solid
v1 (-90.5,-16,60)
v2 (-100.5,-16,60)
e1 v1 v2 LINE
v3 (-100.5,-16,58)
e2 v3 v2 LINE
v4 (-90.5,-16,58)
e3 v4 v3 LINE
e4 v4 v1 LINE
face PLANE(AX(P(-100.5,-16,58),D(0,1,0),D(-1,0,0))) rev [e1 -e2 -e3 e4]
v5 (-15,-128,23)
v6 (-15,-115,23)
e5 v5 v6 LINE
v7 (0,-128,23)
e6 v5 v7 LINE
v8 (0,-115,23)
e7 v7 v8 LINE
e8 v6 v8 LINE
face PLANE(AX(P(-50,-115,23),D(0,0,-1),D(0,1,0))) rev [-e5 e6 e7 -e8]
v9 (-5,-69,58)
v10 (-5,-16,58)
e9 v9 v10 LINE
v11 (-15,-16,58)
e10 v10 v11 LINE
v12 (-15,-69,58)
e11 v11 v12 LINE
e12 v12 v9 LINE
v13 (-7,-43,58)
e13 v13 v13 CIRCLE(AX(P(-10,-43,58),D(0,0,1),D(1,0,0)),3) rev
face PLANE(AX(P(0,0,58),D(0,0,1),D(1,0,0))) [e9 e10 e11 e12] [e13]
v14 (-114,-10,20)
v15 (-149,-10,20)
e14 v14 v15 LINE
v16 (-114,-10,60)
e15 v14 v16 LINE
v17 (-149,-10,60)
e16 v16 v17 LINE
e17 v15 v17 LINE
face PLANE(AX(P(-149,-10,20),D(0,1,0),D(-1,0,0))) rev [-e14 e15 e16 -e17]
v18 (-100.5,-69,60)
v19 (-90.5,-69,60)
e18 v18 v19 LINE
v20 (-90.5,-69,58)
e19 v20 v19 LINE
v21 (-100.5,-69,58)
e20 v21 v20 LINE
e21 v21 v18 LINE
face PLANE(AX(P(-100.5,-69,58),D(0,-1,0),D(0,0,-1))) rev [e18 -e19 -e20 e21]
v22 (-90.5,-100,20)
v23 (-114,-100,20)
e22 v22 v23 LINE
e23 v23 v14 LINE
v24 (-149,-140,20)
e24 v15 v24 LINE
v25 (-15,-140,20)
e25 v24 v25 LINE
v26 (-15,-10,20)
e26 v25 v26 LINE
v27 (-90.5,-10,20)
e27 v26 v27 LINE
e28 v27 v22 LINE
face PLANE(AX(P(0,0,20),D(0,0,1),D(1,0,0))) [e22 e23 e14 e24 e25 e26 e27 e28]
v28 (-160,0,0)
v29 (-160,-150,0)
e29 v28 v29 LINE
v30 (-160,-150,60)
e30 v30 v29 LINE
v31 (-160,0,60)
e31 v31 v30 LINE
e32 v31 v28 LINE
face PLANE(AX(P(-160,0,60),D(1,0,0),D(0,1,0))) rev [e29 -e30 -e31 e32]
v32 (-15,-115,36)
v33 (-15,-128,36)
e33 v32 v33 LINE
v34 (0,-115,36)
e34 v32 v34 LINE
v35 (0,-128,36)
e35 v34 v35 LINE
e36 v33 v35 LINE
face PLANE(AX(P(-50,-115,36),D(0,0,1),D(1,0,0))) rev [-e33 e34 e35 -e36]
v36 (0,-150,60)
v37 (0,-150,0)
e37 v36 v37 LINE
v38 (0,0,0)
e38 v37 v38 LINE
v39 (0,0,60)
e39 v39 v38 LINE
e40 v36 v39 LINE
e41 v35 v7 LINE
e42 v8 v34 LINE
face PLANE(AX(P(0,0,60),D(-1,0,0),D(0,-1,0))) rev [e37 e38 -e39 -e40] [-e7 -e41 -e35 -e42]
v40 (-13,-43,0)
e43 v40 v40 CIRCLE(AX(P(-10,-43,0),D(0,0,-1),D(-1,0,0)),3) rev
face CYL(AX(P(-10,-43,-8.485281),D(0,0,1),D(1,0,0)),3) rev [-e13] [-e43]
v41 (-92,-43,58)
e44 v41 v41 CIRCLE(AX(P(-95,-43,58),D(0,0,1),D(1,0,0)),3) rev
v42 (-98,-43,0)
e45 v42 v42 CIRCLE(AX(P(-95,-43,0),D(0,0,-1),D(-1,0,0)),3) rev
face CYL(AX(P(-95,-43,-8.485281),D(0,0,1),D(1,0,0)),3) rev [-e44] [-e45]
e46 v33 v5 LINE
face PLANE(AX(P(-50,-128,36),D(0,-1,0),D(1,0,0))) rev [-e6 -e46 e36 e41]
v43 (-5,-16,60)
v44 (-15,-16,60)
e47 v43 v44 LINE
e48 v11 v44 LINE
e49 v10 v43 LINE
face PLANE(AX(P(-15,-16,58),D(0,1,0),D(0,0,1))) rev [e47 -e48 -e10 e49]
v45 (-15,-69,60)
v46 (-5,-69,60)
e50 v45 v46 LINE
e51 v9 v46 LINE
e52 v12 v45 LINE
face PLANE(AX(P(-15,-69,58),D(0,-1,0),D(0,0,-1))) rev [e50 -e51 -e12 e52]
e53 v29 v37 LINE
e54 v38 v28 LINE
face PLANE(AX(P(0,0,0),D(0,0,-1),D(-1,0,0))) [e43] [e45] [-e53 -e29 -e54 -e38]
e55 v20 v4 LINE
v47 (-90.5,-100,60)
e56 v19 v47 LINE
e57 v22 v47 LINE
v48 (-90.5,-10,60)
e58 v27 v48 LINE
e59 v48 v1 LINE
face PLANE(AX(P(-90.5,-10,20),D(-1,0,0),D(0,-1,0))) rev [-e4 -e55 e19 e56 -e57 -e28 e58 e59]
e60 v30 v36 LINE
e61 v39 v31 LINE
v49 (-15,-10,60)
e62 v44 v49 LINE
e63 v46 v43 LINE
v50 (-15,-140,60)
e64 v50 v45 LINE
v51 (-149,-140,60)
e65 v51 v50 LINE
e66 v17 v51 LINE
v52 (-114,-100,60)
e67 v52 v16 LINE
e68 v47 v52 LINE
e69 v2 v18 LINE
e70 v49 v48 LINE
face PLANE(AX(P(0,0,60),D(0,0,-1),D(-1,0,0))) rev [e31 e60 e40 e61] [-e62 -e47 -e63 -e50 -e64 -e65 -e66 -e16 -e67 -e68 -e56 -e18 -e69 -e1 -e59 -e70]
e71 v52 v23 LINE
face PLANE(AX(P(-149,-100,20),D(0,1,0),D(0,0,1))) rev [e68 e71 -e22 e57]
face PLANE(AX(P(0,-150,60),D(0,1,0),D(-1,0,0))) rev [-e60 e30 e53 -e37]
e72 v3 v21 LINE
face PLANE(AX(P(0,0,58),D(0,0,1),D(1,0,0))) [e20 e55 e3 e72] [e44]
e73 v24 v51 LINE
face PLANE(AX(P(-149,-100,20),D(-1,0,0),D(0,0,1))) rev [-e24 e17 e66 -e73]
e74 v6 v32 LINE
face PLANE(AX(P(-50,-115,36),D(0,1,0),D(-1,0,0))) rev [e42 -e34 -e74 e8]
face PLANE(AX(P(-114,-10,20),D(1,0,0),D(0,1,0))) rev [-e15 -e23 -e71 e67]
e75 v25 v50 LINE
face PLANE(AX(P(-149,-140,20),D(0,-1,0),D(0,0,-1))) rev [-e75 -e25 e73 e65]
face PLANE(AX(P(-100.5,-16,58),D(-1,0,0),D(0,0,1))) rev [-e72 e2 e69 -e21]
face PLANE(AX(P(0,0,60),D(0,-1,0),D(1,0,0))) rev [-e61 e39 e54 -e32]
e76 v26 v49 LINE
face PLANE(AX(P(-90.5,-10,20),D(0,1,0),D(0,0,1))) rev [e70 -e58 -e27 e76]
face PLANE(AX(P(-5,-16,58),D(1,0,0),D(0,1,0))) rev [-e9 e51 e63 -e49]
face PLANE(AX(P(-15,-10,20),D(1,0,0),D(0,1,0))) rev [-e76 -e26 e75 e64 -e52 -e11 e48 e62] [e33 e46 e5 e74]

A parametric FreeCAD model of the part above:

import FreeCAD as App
import Part
import Sketcher

V = App.Vector

doc = App.newDocument("Part")
params = doc.addObject("Spreadsheet::Sheet", "Params")
for row, (alias, value) in enumerate([
    ("sketch1_width", "160 mm"),
    ("sketch1_height", "150 mm"),
    ("pad1_length", "60 mm"),
    ("sketch2_width", "134 mm"),
    ("sketch2_height", "90 mm"),
    ("sketch2_height2", "40 mm"),
    ("sketch2_width2", "75.5 mm"),
    ("pocket1_length", "40 mm"),
    ("sketch3_diameter", "6 mm"),
    ("pocket2_length", "60 mm"),
    ("sketch4_width", "13 mm"),
    ("pocket3_length", "50 mm"),
    ("sketch5_width", "10 mm"),
    ("sketch5_height", "53 mm"),
    ("pocket4_length", "2 mm"),
    ("sketch6_width", "35 mm"),
    ("sketch6_height", "130 mm"),
    ("pocket5_length", "40 mm"),
], start=1):
    params.set(f"A{row}", alias)
    params.set(f"B{row}", "=" + value)
    params.setAlias(f"B{row}", alias)

body = doc.addObject("PartDesign::Body", "Body")

sketch1 = body.newObject("Sketcher::SketchObject", "Sketch")
sketch1.AttachmentSupport = (doc.getObject("XY_Plane"), [""])
sketch1.MapMode = "FlatFace"
sketch1.addGeometry(Part.LineSegment(V(-160, 0, 0), V(-160, -150, 0)), False)
sketch1.addGeometry(Part.LineSegment(V(-160, -150, 0), V(0, -150, 0)), False)
sketch1.addGeometry(Part.LineSegment(V(0, -150, 0), V(0, 0, 0)), False)
sketch1.addGeometry(Part.LineSegment(V(0, 0, 0), V(-160, 0, 0)), False)
sketch1.addConstraint(Sketcher.Constraint("Coincident", 0, 2, 1, 1))
sketch1.addConstraint(Sketcher.Constraint("Coincident", 1, 2, 2, 1))
sketch1.addConstraint(Sketcher.Constraint("Coincident", 2, 2, 3, 1))
sketch1.addConstraint(Sketcher.Constraint("Coincident", 3, 2, 0, 1))
sketch1.addConstraint(Sketcher.Constraint("Vertical", 0))
sketch1.addConstraint(Sketcher.Constraint("Horizontal", 1))
sketch1.addConstraint(Sketcher.Constraint("Vertical", 2))
sketch1.addConstraint(Sketcher.Constraint("Horizontal", 3))
sketch1.addConstraint(Sketcher.Constraint("Coincident", 2, 2, -1, 1))
sketch1.addConstraint(Sketcher.Constraint("DistanceX", 1, 1, 1, 2, 160.0))
sketch1.addConstraint(Sketcher.Constraint("DistanceY", 0, 2, 0, 1, 150.0))
sketch1.setExpression("Constraints[9]", "Params.sketch1_width")
sketch1.setExpression("Constraints[10]", "Params.sketch1_height")
pad1 = body.newObject("PartDesign::Pad", "Pad")
pad1.Profile = sketch1
pad1.setExpression("Length", "Params.pad1_length")

sketch2 = body.newObject("Sketcher::SketchObject", "Sketch001")
sketch2.AttachmentSupport = (doc.getObject("XY_Plane"), [""])
sketch2.MapMode = "FlatFace"
sketch2.AttachmentOffset = App.Placement(V(0, 0, 60), App.Rotation())
sketch2.addGeometry(Part.LineSegment(V(-15, -10, 0), V(-90.5, -10, 0)), False)
sketch2.addGeometry(Part.LineSegment(V(-90.5, -10, 0), V(-90.5, -100, 0)), False)
sketch2.addGeometry(Part.LineSegment(V(-90.5, -100, 0), V(-149, -100, 0)), False)
sketch2.addGeometry(Part.LineSegment(V(-149, -100, 0), V(-149, -140, 0)), False)
sketch2.addGeometry(Part.LineSegment(V(-149, -140, 0), V(-15, -140, 0)), False)
sketch2.addGeometry(Part.LineSegment(V(-15, -140, 0), V(-15, -10, 0)), False)
sketch2.addConstraint(Sketcher.Constraint("Coincident", 0, 2, 1, 1))
sketch2.addConstraint(Sketcher.Constraint("Coincident", 1, 2, 2, 1))
sketch2.addConstraint(Sketcher.Constraint("Coincident", 2, 2, 3, 1))
sketch2.addConstraint(Sketcher.Constraint("Coincident", 3, 2, 4, 1))
sketch2.addConstraint(Sketcher.Constraint("Coincident", 4, 2, 5, 1))
sketch2.addConstraint(Sketcher.Constraint("Coincident", 5, 2, 0, 1))
sketch2.addConstraint(Sketcher.Constraint("Horizontal", 0))
sketch2.addConstraint(Sketcher.Constraint("Vertical", 1))
sketch2.addConstraint(Sketcher.Constraint("Horizontal", 2))
sketch2.addConstraint(Sketcher.Constraint("Vertical", 3))
sketch2.addConstraint(Sketcher.Constraint("Horizontal", 4))
sketch2.addConstraint(Sketcher.Constraint("Vertical", 5))
sketch2.addConstraint(Sketcher.Constraint("DistanceX", 4, 1, 4, 2, 134.0))
sketch2.addConstraint(Sketcher.Constraint("DistanceY", 1, 2, 1, 1, 90.0))
sketch2.addConstraint(Sketcher.Constraint("DistanceY", 3, 2, 3, 1, 40.0))
sketch2.addConstraint(Sketcher.Constraint("DistanceX", 0, 2, 0, 1, 75.5))
sketch2.addConstraint(Sketcher.Constraint("DistanceY", 0, 2, -1, 1, 10.0))
sketch2.addConstraint(Sketcher.Constraint("DistanceX", 2, 2, -1, 1, 149.0))
sketch2.setExpression("Constraints[12]", "Params.sketch2_width")
sketch2.setExpression("Constraints[13]", "Params.sketch2_height")
sketch2.setExpression("Constraints[14]", "Params.sketch2_height2")
sketch2.setExpression("Constraints[15]", "Params.sketch2_width2")
pocket1 = body.newObject("PartDesign::Pocket", "Pocket")
pocket1.Profile = sketch2
pocket1.setExpression("Length", "Params.pocket1_length")

sketch3 = body.newObject("Sketcher::SketchObject", "Sketch002")
sketch3.AttachmentSupport = (doc.getObject("XY_Plane"), [""])
sketch3.MapMode = "FlatFace"
sketch3.AttachmentOffset = App.Placement(V(0, 0, 60), App.Rotation())
sketch3.addGeometry(Part.Circle(V(-95, -43, 0), V(0, 0, 1), 3), False)
sketch3.addGeometry(Part.Circle(V(-10, -43, 0), V(0, 0, 1), 3), False)
sketch3.addConstraint(Sketcher.Constraint("Equal", 0, 1))
sketch3.addConstraint(Sketcher.Constraint("Horizontal", 0, 3, 1, 3))
sketch3.addConstraint(Sketcher.Constraint("Diameter", 0, 6.0))
sketch3.addConstraint(Sketcher.Constraint("DistanceX", 0, 3, -1, 1, 95.0))
sketch3.addConstraint(Sketcher.Constraint("DistanceY", 0, 3, -1, 1, 43.0))
sketch3.addConstraint(Sketcher.Constraint("DistanceX", 1, 3, -1, 1, 10.0))
sketch3.setExpression("Constraints[2]", "Params.sketch3_diameter")
pocket2 = body.newObject("PartDesign::Pocket", "Pocket001")
pocket2.Profile = sketch3
pocket2.setExpression("Length", "Params.pocket2_length")

sketch4 = body.newObject("Sketcher::SketchObject", "Sketch003")
sketch4.AttachmentSupport = (doc.getObject("YZ_Plane"), [""])
sketch4.MapMode = "FlatFace"
sketch4.addGeometry(Part.LineSegment(V(-115, 36, 0), V(-128, 36, 0)), False)
sketch4.addGeometry(Part.LineSegment(V(-128, 36, 0), V(-128, 23, 0)), False)
sketch4.addGeometry(Part.LineSegment(V(-128, 23, 0), V(-115, 23, 0)), False)
sketch4.addGeometry(Part.LineSegment(V(-115, 23, 0), V(-115, 36, 0)), False)
sketch4.addConstraint(Sketcher.Constraint("Coincident", 0, 2, 1, 1))
sketch4.addConstraint(Sketcher.Constraint("Coincident", 1, 2, 2, 1))
sketch4.addConstraint(Sketcher.Constraint("Coincident", 2, 2, 3, 1))
sketch4.addConstraint(Sketcher.Constraint("Coincident", 3, 2, 0, 1))
sketch4.addConstraint(Sketcher.Constraint("Horizontal", 0))
sketch4.addConstraint(Sketcher.Constraint("Vertical", 1))
sketch4.addConstraint(Sketcher.Constraint("Horizontal", 2))
sketch4.addConstraint(Sketcher.Constraint("Vertical", 3))
sketch4.addConstraint(Sketcher.Constraint("Equal", 2, 1))
sketch4.addConstraint(Sketcher.Constraint("DistanceX", 0, 2, 0, 1, 13.0))
sketch4.addConstraint(Sketcher.Constraint("DistanceX", 0, 2, -1, 1, 128.0))
sketch4.addConstraint(Sketcher.Constraint("DistanceY", -1, 1, 0, 2, 36.0))
sketch4.setExpression("Constraints[9]", "Params.sketch4_width")
pocket3 = body.newObject("PartDesign::Pocket", "Pocket002")
pocket3.Profile = sketch4
pocket3.setExpression("Length", "Params.pocket3_length")

sketch5 = body.newObject("Sketcher::SketchObject", "Sketch004")
sketch5.AttachmentSupport = (doc.getObject("XY_Plane"), [""])
sketch5.MapMode = "FlatFace"
sketch5.AttachmentOffset = App.Placement(V(0, 0, 60), App.Rotation())
sketch5.addGeometry(Part.LineSegment(V(-100.5, -16, 0), V(-100.5, -69, 0)), False)
sketch5.addGeometry(Part.LineSegment(V(-100.5, -69, 0), V(-90.5, -69, 0)), False)
sketch5.addGeometry(Part.LineSegment(V(-90.5, -69, 0), V(-90.5, -16, 0)), False)
sketch5.addGeometry(Part.LineSegment(V(-90.5, -16, 0), V(-100.5, -16, 0)), False)
sketch5.addGeometry(Part.LineSegment(V(-15, -16, 0), V(-15, -69, 0)), False)
sketch5.addGeometry(Part.LineSegment(V(-15, -69, 0), V(-5, -69, 0)), False)
sketch5.addGeometry(Part.LineSegment(V(-5, -69, 0), V(-5, -16, 0)), False)
sketch5.addGeometry(Part.LineSegment(V(-5, -16, 0), V(-15, -16, 0)), False)
sketch5.addConstraint(Sketcher.Constraint("Coincident", 0, 2, 1, 1))
sketch5.addConstraint(Sketcher.Constraint("Coincident", 1, 2, 2, 1))
sketch5.addConstraint(Sketcher.Constraint("Coincident", 2, 2, 3, 1))
sketch5.addConstraint(Sketcher.Constraint("Coincident", 3, 2, 0, 1))
sketch5.addConstraint(Sketcher.Constraint("Coincident", 4, 2, 5, 1))
sketch5.addConstraint(Sketcher.Constraint("Coincident", 5, 2, 6, 1))
sketch5.addConstraint(Sketcher.Constraint("Coincident", 6, 2, 7, 1))
sketch5.addConstraint(Sketcher.Constraint("Coincident", 7, 2, 4, 1))
sketch5.addConstraint(Sketcher.Constraint("Vertical", 0))
sketch5.addConstraint(Sketcher.Constraint("Horizontal", 1))
sketch5.addConstraint(Sketcher.Constraint("Vertical", 2))
sketch5.addConstraint(Sketcher.Constraint("Horizontal", 3))
sketch5.addConstraint(Sketcher.Constraint("Vertical", 4))
sketch5.addConstraint(Sketcher.Constraint("Horizontal", 5))
sketch5.addConstraint(Sketcher.Constraint("Vertical", 6))
sketch5.addConstraint(Sketcher.Constraint("Horizontal", 7))
sketch5.addConstraint(Sketcher.Constraint("Horizontal", 1, 2, 4, 2))
sketch5.addConstraint(Sketcher.Constraint("Horizontal", 3, 2, 6, 2))
sketch5.addConstraint(Sketcher.Constraint("Equal", 3, 5))
sketch5.addConstraint(Sketcher.Constraint("DistanceX", 1, 1, 1, 2, 10.0))
sketch5.addConstraint(Sketcher.Constraint("DistanceY", 0, 2, 0, 1, 53.0))
sketch5.addConstraint(Sketcher.Constraint("DistanceY", 0, 2, -1, 1, 69.0))
sketch5.addConstraint(Sketcher.Constraint("DistanceX", 4, 2, -1, 1, 15.0))
sketch5.addConstraint(Sketcher.Constraint("DistanceX", 0, 2, -1, 1, 100.5))
sketch5.setExpression("Constraints[19]", "Params.sketch5_width")
sketch5.setExpression("Constraints[20]", "Params.sketch5_height")
pocket4 = body.newObject("PartDesign::Pocket", "Pocket003")
pocket4.Profile = sketch5
pocket4.setExpression("Length", "Params.pocket4_length")

sketch6 = body.newObject("Sketcher::SketchObject", "Sketch005")
sketch6.AttachmentSupport = (doc.getObject("XY_Plane"), [""])
sketch6.MapMode = "FlatFace"
sketch6.AttachmentOffset = App.Placement(V(0, 0, 60), App.Rotation())
sketch6.addGeometry(Part.LineSegment(V(-149, -10, 0), V(-149, -140, 0)), False)
sketch6.addGeometry(Part.LineSegment(V(-149, -140, 0), V(-114, -140, 0)), False)
sketch6.addGeometry(Part.LineSegment(V(-114, -140, 0), V(-114, -10, 0)), False)
sketch6.addGeometry(Part.LineSegment(V(-114, -10, 0), V(-149, -10, 0)), False)
sketch6.addConstraint(Sketcher.Constraint("Coincident", 0, 2, 1, 1))
sketch6.addConstraint(Sketcher.Constraint("Coincident", 1, 2, 2, 1))
sketch6.addConstraint(Sketcher.Constraint("Coincident", 2, 2, 3, 1))
sketch6.addConstraint(Sketcher.Constraint("Coincident", 3, 2, 0, 1))
sketch6.addConstraint(Sketcher.Constraint("Vertical", 0))
sketch6.addConstraint(Sketcher.Constraint("Horizontal", 1))
sketch6.addConstraint(Sketcher.Constraint("Vertical", 2))
sketch6.addConstraint(Sketcher.Constraint("Horizontal", 3))
sketch6.addConstraint(Sketcher.Constraint("DistanceX", 1, 1, 1, 2, 35.0))
sketch6.addConstraint(Sketcher.Constraint("DistanceY", 0, 2, 0, 1, 130.0))
sketch6.addConstraint(Sketcher.Constraint("DistanceX", 0, 2, -1, 1, 149.0))
sketch6.addConstraint(Sketcher.Constraint("DistanceY", 0, 2, -1, 1, 140.0))
sketch6.setExpression("Constraints[8]", "Params.sketch6_width")
sketch6.setExpression("Constraints[9]", "Params.sketch6_height")
pocket5 = body.newObject("PartDesign::Pocket", "Pocket004")
pocket5.Profile = sketch6
pocket5.setExpression("Length", "Params.pocket5_length")

doc.recompute()
